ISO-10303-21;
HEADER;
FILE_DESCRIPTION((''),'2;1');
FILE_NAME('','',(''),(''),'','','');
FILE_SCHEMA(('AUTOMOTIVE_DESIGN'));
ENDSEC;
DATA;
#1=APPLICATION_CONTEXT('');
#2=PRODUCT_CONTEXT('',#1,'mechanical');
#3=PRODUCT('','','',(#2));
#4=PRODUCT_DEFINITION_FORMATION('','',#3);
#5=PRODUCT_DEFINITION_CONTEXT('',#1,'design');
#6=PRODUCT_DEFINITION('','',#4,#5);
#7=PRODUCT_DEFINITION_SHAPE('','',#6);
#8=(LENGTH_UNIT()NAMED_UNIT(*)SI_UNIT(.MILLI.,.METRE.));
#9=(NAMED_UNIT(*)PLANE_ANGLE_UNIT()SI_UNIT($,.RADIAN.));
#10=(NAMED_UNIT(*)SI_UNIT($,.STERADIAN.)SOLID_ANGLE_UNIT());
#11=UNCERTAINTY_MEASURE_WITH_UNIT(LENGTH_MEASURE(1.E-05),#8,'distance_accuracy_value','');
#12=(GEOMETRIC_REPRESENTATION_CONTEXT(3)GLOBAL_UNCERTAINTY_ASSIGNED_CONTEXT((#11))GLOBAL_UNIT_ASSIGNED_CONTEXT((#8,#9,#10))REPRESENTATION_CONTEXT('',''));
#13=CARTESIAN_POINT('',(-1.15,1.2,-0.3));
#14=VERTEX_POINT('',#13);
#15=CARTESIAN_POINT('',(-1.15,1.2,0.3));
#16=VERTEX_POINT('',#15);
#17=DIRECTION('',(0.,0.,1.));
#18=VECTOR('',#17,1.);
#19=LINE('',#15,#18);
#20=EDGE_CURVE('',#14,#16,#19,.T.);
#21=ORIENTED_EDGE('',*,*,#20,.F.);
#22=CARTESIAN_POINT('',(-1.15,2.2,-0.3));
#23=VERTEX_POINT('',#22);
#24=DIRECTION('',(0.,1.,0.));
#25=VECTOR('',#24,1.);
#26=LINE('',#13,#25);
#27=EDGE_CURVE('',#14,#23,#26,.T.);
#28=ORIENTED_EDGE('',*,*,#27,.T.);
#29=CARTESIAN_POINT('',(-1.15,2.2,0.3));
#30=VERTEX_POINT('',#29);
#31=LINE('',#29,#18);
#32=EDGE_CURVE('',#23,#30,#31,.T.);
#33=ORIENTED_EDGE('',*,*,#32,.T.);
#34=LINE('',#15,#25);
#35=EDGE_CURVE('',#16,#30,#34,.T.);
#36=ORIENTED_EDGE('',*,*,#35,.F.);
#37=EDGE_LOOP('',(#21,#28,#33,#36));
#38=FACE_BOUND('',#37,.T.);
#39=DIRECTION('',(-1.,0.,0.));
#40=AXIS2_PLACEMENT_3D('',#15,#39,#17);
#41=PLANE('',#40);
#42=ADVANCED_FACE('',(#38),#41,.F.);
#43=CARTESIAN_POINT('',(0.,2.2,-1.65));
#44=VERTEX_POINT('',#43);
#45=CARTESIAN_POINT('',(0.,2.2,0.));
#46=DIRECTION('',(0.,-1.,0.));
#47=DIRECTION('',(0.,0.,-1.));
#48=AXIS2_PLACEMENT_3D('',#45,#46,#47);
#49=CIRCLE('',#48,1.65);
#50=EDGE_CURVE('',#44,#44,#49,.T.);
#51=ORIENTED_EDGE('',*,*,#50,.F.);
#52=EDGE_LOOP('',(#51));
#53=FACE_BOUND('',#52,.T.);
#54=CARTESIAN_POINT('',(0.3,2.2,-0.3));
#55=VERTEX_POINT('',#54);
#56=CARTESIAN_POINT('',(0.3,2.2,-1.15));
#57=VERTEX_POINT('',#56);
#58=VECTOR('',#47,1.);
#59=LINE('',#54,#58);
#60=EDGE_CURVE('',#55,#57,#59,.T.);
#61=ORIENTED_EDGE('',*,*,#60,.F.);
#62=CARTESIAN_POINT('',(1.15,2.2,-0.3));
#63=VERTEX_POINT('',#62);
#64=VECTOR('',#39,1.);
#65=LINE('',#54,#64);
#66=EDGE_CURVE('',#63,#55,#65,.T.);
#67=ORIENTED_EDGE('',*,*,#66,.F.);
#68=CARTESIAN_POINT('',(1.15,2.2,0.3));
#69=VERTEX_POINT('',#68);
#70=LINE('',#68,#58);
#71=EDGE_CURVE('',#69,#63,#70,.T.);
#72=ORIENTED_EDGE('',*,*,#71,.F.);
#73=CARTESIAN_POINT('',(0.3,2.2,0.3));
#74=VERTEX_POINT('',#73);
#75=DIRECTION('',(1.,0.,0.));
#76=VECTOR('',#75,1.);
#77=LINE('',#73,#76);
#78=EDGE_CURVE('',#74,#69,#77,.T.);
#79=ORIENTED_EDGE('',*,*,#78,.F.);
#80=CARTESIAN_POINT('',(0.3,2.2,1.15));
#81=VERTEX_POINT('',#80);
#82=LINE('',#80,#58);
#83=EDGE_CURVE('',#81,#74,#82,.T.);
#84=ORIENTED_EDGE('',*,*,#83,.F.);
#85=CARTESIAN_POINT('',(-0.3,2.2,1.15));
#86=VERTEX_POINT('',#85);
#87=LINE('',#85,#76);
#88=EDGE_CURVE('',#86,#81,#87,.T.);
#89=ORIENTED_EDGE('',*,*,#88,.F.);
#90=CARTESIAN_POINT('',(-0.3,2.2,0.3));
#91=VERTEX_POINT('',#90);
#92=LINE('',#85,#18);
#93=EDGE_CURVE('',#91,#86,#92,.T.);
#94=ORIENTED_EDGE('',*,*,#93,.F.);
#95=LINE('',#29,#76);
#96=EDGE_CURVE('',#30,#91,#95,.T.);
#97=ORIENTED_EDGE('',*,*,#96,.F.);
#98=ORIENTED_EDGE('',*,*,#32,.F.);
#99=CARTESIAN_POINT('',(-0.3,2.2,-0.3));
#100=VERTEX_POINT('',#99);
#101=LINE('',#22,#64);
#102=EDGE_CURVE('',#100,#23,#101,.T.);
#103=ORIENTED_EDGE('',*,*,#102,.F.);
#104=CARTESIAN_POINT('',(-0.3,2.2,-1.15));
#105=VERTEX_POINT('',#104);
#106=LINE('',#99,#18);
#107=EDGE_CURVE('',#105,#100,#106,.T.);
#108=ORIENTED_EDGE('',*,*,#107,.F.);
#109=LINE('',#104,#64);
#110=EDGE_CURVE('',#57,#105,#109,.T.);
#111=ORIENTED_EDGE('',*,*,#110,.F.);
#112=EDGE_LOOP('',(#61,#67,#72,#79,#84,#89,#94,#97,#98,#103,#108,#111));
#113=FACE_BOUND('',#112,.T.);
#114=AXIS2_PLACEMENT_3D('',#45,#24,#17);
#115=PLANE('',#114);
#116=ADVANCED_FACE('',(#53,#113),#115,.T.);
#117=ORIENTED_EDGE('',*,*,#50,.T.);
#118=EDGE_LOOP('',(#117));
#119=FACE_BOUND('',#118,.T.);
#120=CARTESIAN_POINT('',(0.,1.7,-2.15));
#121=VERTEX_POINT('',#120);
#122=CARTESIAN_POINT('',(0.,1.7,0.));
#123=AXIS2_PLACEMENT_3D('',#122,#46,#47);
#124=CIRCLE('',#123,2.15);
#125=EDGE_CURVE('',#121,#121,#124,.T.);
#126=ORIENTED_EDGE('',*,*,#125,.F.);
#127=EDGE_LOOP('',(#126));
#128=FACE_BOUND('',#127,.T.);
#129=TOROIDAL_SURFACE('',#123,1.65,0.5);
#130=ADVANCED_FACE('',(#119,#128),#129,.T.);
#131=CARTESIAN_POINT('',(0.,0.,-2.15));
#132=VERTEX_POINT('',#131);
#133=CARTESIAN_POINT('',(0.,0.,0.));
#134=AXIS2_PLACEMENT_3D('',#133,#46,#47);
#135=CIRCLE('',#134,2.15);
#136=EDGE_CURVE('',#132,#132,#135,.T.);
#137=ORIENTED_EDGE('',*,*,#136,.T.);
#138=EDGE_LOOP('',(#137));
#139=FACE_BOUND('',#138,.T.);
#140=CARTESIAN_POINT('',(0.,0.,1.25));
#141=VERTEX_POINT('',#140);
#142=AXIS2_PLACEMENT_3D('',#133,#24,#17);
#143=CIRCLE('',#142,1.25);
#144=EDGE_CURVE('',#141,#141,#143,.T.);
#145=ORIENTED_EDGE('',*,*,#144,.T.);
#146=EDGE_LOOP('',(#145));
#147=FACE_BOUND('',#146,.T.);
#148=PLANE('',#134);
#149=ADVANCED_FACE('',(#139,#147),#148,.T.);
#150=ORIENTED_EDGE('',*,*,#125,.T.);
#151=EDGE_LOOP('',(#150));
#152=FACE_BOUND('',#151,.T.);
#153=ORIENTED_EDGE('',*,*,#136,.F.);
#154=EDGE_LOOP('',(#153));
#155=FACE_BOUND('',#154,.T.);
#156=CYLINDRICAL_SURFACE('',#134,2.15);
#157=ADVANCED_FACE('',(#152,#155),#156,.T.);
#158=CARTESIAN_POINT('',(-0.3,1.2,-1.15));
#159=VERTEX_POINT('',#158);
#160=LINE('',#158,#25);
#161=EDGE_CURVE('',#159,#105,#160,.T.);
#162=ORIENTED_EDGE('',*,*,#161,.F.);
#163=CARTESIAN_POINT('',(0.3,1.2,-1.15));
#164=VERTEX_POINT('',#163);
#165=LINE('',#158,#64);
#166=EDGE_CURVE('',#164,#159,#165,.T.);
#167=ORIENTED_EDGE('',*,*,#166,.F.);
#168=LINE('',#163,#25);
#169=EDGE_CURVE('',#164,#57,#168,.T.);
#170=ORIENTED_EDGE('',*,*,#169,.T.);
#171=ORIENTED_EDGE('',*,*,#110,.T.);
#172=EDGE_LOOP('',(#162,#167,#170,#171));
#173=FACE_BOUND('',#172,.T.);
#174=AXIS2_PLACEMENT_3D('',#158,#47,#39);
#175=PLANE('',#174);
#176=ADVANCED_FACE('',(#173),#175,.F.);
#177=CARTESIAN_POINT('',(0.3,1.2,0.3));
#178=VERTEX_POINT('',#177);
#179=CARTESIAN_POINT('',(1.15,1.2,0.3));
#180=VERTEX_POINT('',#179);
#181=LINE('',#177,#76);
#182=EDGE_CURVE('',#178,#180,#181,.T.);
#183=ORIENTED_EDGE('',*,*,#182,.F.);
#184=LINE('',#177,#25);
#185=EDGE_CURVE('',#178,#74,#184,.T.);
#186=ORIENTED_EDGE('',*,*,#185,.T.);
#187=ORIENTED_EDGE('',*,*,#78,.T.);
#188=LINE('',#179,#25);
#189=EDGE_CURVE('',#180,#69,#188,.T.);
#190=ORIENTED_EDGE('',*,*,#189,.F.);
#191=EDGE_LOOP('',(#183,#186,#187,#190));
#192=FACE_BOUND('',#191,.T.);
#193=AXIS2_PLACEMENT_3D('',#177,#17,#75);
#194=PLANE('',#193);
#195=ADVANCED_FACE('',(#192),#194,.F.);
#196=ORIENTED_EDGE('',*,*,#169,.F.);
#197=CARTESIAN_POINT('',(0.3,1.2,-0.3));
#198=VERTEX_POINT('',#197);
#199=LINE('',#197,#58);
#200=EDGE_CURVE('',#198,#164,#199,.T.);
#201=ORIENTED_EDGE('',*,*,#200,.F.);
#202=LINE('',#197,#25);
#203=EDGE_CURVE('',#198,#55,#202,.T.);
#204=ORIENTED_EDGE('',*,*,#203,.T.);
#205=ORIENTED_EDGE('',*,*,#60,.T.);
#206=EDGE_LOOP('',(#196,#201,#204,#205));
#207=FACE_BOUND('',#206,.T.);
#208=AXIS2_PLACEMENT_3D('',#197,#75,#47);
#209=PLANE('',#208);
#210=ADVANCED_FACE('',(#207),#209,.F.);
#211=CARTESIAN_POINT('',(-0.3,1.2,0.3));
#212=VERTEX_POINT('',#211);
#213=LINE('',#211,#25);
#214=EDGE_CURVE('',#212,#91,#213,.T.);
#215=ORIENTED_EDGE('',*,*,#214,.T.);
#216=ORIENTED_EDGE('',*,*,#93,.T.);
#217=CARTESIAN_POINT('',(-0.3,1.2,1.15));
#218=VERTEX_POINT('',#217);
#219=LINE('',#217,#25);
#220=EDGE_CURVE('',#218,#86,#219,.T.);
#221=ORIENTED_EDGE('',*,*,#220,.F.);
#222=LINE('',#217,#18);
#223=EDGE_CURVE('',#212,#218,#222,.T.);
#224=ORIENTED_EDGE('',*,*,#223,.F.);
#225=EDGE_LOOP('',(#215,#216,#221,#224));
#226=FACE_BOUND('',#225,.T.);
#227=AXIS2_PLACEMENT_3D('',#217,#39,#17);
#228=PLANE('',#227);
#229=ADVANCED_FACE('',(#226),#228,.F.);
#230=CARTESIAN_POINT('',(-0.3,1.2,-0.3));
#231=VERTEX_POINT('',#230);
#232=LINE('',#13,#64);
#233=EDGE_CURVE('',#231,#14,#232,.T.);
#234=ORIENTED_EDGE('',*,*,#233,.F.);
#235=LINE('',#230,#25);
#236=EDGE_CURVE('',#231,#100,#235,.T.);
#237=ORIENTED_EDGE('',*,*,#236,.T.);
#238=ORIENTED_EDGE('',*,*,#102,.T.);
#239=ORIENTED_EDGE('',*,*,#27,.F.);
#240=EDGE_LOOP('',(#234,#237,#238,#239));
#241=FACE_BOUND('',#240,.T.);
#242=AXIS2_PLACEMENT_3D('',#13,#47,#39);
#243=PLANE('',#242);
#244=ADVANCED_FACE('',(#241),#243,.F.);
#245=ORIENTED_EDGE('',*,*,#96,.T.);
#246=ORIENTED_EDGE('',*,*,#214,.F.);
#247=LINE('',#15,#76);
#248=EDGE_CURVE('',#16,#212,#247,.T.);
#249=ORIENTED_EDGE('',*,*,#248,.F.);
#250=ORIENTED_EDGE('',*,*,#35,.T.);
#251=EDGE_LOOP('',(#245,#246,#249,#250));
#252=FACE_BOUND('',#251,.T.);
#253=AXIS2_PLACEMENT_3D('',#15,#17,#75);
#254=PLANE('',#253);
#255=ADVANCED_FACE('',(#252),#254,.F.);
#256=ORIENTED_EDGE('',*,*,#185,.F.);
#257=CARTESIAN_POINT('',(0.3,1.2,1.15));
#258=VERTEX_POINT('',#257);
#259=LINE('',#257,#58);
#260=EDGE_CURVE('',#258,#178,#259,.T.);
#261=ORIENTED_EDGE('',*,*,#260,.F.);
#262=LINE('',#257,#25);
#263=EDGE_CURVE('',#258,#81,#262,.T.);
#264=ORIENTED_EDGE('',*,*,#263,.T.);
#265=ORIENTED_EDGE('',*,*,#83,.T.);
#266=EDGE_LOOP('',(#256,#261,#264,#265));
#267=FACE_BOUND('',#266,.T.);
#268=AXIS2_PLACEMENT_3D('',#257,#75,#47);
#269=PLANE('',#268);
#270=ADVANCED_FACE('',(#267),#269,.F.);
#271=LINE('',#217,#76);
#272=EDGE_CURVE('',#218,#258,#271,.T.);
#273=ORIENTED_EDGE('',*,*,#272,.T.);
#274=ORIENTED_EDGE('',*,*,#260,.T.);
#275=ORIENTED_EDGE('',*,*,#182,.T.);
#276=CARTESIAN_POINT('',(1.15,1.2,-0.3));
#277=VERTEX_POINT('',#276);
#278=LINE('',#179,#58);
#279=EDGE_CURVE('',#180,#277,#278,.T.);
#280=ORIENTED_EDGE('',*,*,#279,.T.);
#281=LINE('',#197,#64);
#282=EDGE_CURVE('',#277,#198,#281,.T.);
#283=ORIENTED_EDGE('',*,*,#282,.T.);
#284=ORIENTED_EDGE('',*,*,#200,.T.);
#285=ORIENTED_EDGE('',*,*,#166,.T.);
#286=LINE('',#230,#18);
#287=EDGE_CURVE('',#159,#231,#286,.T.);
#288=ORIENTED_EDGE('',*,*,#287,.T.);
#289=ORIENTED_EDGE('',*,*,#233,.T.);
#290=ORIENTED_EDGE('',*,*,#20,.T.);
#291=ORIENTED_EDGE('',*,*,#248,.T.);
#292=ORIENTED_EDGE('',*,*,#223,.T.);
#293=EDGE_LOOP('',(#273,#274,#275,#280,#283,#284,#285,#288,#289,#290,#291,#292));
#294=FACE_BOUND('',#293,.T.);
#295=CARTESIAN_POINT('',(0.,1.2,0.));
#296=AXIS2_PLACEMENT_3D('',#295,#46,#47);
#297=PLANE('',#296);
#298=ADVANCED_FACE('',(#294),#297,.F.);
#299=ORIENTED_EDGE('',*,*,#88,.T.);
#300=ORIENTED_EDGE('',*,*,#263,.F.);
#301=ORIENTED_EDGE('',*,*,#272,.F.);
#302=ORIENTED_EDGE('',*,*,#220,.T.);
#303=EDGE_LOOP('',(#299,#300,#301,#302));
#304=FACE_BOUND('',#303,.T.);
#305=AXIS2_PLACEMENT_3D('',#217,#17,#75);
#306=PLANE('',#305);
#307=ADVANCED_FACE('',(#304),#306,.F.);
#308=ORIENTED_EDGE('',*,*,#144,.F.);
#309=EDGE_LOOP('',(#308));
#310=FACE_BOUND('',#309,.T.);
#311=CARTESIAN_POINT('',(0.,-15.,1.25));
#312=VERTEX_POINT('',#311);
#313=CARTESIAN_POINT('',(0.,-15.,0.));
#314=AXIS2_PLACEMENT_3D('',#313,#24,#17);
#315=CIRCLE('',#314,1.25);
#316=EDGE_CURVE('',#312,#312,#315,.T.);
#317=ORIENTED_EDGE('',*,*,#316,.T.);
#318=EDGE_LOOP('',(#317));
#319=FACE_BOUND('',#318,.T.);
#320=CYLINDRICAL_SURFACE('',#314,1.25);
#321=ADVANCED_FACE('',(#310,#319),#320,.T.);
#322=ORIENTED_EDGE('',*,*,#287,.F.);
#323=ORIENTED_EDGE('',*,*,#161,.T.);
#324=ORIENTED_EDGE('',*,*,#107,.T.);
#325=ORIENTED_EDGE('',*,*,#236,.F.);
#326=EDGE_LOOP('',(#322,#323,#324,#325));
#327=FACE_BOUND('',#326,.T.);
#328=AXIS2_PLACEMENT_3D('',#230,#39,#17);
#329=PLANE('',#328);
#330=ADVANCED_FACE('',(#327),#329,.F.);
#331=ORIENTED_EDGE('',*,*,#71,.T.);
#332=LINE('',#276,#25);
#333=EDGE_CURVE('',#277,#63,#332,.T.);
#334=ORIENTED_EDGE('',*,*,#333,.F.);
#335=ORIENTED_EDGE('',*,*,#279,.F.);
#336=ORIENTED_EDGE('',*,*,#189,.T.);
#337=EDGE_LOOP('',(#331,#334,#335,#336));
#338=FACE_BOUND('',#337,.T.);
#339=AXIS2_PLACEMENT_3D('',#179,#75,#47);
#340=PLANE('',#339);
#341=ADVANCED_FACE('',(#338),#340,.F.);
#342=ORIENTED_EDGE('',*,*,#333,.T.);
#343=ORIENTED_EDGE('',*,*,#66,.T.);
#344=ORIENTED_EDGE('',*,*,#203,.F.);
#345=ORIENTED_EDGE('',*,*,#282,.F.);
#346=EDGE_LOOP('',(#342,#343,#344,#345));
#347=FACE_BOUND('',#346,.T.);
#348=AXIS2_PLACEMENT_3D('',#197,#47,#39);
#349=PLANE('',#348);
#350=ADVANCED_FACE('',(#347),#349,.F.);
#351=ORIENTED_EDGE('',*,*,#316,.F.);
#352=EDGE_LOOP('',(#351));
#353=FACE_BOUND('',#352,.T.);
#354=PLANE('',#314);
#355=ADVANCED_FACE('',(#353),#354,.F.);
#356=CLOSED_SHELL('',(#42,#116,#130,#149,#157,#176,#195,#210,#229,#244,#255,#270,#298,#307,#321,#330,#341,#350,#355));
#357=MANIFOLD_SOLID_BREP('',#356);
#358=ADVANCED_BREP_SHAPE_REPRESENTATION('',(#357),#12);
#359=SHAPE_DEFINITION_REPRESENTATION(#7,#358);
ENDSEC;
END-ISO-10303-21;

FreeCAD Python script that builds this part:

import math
import FreeCAD as App
import Part
import Sketcher

V = App.Vector

doc = App.newDocument("Part")
body = doc.addObject("PartDesign::Body", "Body")

# Sketch on XZ plane
sketch1 = body.newObject("Sketcher::SketchObject", "Sketch")
sketch1.AttachmentSupport = (doc.getObject("XZ_Plane"), [""])
sketch1.MapMode = "FlatFace"
sketch1.addGeometry(Part.Circle(V(0, 0, 0), V(0, 0, 1), 1.2), False)
sketch1.addConstraint([
    Sketcher.Constraint("Coincident", 0, 3, -1, 1),
    Sketcher.Constraint("Diameter", 0, 2.5),
])
pad1 = body.newObject("PartDesign::Pad", "Pad")
pad1.Profile = sketch1
pad1.Length = 15

# Sketch on XY plane
sketch2 = body.newObject("Sketcher::SketchObject", "Sketch001")
sketch2.AttachmentSupport = (doc.getObject("XY_Plane"), [""])
sketch2.MapMode = "FlatFace"
sketch2.addGeometry([
    Part.LineSegment(V(0, 2.2, 0), V(0, 0, 0)),  # 0
    Part.LineSegment(V(0, 0, 0), V(2.15, 0, 0)),  # 1
    Part.LineSegment(V(2.15, 0, 0), V(2.15, 1.7, 0)),  # 2
    Part.ArcOfCircle(Part.Circle(V(1.65, 1.7, 0), V(0, 0, 1), 0.5), math.radians(0), math.radians(90)),  # 3
    Part.LineSegment(V(1.65, 2.2, 0), V(0, 2.2, 0)),  # 4
], False)
sketch2.addConstraint([
    Sketcher.Constraint("Coincident", 0, 2, 1, 1),
    Sketcher.Constraint("Coincident", 1, 2, 2, 1),
    Sketcher.Constraint("Tangent", 2, 2, 3, 1),
    Sketcher.Constraint("Tangent", 3, 2, 4, 1),
    Sketcher.Constraint("Coincident", 4, 2, 0, 1),
    Sketcher.Constraint("Vertical", 0),
    Sketcher.Constraint("Horizontal", 1),
    Sketcher.Constraint("Vertical", 2),
    Sketcher.Constraint("Horizontal", 4),
    Sketcher.Constraint("Coincident", 0, 2, -1, 1),
    Sketcher.Constraint("Radius", 3, 0.5),
    Sketcher.Constraint("DistanceY", 0, 2, 0, 1, 2.2),
    Sketcher.Constraint("DistanceX", 1, 1, 1, 2, 2.15),
])
revolution = body.newObject("PartDesign::Revolution", "Revolution")
revolution.Profile = sketch2
revolution.ReferenceAxis = (sketch2, ["V_Axis"])
revolution.Angle = 360

# Sketch on XZ plane
sketch3 = body.newObject("Sketcher::SketchObject", "Sketch002")
sketch3.AttachmentSupport = (doc.getObject("XZ_Plane"), [""])
sketch3.MapMode = "FlatFace"
sketch3.AttachmentOffset = App.Placement(V(0, 0, -2.2), App.Rotation())
sketch3.addGeometry([
    Part.LineSegment(V(-0.3, 1.1, 0), V(0.3, 1.1, 0)),  # 0
    Part.LineSegment(V(0.3, 1.1, 0), V(0.3, 0.3, 0)),  # 1
    Part.LineSegment(V(0.3, 0.3, 0), V(1.1, 0.3, 0)),  # 2
    Part.LineSegment(V(1.1, 0.3, 0), V(1.1, -0.3, 0)),  # 3
    Part.LineSegment(V(1.1, -0.3, 0), V(0.3, -0.3, 0)),  # 4
    Part.LineSegment(V(0.3, -0.3, 0), V(0.3, -1.1, 0)),  # 5
    Part.LineSegment(V(0.3, -1.1, 0), V(-0.3, -1.1, 0)),  # 6
    Part.LineSegment(V(-0.3, -1.1, 0), V(-0.3, -0.3, 0)),  # 7
    Part.LineSegment(V(-0.3, -0.3, 0), V(-1.1, -0.3, 0)),  # 8
    Part.LineSegment(V(-1.1, -0.3, 0), V(-1.1, 0.3, 0)),  # 9
    Part.LineSegment(V(-1.1, 0.3, 0), V(-0.3, 0.3, 0)),  # 10
    Part.LineSegment(V(-0.3, 0.3, 0), V(-0.3, 1.1, 0)),  # 11
], False)
sketch3.addConstraint([
    Sketcher.Constraint("Coincident", 0, 2, 1, 1),
    Sketcher.Constraint("Coincident", 1, 2, 2, 1),
    Sketcher.Constraint("Coincident", 2, 2, 3, 1),
    Sketcher.Constraint("Coincident", 3, 2, 4, 1),
    Sketcher.Constraint("Coincident", 4, 2, 5, 1),
    Sketcher.Constraint("Coincident", 5, 2, 6, 1),
    Sketcher.Constraint("Coincident", 6, 2, 7, 1),
    Sketcher.Constraint("Coincident", 7, 2, 8, 1),
    Sketcher.Constraint("Coincident", 8, 2, 9, 1),
    Sketcher.Constraint("Coincident", 9, 2, 10, 1),
    Sketcher.Constraint("Coincident", 10, 2, 11, 1),
    Sketcher.Constraint("Coincident", 11, 2, 0, 1),
    Sketcher.Constraint("Horizontal", 0),
    Sketcher.Constraint("Vertical", 1),
    Sketcher.Constraint("Horizontal", 2),
    Sketcher.Constraint("Vertical", 3),
    Sketcher.Constraint("Horizontal", 4),
    Sketcher.Constraint("Vertical", 5),
    Sketcher.Constraint("Horizontal", 6),
    Sketcher.Constraint("Vertical", 7),
    Sketcher.Constraint("Horizontal", 8),
    Sketcher.Constraint("Vertical", 9),
    Sketcher.Constraint("Horizontal", 10),
    Sketcher.Constraint("Vertical", 11),
    Sketcher.Constraint("Symmetric", 0, 2, 6, 2, -1, 1),
    Sketcher.Constraint("Symmetric", 2, 2, 8, 2, -1, 1),
    Sketcher.Constraint("Symmetric", 4, 2, 10, 2, -1, 1),
    Sketcher.Constraint("Symmetric", 4, 2, 7, 2, -2),
    Sketcher.Constraint("Equal", 10, 1),
    Sketcher.Constraint("Equal", 6, 3),
    Sketcher.Constraint("DistanceX", 0, 1, 0, 2, 0.6),
    Sketcher.Constraint("DistanceX", 2, 1, 2, 2, 0.85),
])
pocket1 = body.newObject("PartDesign::Pocket", "Pocket")
pocket1.Profile = sketch3
pocket1.Length = 1
pocket1.Reversed = True

doc.recompute()
